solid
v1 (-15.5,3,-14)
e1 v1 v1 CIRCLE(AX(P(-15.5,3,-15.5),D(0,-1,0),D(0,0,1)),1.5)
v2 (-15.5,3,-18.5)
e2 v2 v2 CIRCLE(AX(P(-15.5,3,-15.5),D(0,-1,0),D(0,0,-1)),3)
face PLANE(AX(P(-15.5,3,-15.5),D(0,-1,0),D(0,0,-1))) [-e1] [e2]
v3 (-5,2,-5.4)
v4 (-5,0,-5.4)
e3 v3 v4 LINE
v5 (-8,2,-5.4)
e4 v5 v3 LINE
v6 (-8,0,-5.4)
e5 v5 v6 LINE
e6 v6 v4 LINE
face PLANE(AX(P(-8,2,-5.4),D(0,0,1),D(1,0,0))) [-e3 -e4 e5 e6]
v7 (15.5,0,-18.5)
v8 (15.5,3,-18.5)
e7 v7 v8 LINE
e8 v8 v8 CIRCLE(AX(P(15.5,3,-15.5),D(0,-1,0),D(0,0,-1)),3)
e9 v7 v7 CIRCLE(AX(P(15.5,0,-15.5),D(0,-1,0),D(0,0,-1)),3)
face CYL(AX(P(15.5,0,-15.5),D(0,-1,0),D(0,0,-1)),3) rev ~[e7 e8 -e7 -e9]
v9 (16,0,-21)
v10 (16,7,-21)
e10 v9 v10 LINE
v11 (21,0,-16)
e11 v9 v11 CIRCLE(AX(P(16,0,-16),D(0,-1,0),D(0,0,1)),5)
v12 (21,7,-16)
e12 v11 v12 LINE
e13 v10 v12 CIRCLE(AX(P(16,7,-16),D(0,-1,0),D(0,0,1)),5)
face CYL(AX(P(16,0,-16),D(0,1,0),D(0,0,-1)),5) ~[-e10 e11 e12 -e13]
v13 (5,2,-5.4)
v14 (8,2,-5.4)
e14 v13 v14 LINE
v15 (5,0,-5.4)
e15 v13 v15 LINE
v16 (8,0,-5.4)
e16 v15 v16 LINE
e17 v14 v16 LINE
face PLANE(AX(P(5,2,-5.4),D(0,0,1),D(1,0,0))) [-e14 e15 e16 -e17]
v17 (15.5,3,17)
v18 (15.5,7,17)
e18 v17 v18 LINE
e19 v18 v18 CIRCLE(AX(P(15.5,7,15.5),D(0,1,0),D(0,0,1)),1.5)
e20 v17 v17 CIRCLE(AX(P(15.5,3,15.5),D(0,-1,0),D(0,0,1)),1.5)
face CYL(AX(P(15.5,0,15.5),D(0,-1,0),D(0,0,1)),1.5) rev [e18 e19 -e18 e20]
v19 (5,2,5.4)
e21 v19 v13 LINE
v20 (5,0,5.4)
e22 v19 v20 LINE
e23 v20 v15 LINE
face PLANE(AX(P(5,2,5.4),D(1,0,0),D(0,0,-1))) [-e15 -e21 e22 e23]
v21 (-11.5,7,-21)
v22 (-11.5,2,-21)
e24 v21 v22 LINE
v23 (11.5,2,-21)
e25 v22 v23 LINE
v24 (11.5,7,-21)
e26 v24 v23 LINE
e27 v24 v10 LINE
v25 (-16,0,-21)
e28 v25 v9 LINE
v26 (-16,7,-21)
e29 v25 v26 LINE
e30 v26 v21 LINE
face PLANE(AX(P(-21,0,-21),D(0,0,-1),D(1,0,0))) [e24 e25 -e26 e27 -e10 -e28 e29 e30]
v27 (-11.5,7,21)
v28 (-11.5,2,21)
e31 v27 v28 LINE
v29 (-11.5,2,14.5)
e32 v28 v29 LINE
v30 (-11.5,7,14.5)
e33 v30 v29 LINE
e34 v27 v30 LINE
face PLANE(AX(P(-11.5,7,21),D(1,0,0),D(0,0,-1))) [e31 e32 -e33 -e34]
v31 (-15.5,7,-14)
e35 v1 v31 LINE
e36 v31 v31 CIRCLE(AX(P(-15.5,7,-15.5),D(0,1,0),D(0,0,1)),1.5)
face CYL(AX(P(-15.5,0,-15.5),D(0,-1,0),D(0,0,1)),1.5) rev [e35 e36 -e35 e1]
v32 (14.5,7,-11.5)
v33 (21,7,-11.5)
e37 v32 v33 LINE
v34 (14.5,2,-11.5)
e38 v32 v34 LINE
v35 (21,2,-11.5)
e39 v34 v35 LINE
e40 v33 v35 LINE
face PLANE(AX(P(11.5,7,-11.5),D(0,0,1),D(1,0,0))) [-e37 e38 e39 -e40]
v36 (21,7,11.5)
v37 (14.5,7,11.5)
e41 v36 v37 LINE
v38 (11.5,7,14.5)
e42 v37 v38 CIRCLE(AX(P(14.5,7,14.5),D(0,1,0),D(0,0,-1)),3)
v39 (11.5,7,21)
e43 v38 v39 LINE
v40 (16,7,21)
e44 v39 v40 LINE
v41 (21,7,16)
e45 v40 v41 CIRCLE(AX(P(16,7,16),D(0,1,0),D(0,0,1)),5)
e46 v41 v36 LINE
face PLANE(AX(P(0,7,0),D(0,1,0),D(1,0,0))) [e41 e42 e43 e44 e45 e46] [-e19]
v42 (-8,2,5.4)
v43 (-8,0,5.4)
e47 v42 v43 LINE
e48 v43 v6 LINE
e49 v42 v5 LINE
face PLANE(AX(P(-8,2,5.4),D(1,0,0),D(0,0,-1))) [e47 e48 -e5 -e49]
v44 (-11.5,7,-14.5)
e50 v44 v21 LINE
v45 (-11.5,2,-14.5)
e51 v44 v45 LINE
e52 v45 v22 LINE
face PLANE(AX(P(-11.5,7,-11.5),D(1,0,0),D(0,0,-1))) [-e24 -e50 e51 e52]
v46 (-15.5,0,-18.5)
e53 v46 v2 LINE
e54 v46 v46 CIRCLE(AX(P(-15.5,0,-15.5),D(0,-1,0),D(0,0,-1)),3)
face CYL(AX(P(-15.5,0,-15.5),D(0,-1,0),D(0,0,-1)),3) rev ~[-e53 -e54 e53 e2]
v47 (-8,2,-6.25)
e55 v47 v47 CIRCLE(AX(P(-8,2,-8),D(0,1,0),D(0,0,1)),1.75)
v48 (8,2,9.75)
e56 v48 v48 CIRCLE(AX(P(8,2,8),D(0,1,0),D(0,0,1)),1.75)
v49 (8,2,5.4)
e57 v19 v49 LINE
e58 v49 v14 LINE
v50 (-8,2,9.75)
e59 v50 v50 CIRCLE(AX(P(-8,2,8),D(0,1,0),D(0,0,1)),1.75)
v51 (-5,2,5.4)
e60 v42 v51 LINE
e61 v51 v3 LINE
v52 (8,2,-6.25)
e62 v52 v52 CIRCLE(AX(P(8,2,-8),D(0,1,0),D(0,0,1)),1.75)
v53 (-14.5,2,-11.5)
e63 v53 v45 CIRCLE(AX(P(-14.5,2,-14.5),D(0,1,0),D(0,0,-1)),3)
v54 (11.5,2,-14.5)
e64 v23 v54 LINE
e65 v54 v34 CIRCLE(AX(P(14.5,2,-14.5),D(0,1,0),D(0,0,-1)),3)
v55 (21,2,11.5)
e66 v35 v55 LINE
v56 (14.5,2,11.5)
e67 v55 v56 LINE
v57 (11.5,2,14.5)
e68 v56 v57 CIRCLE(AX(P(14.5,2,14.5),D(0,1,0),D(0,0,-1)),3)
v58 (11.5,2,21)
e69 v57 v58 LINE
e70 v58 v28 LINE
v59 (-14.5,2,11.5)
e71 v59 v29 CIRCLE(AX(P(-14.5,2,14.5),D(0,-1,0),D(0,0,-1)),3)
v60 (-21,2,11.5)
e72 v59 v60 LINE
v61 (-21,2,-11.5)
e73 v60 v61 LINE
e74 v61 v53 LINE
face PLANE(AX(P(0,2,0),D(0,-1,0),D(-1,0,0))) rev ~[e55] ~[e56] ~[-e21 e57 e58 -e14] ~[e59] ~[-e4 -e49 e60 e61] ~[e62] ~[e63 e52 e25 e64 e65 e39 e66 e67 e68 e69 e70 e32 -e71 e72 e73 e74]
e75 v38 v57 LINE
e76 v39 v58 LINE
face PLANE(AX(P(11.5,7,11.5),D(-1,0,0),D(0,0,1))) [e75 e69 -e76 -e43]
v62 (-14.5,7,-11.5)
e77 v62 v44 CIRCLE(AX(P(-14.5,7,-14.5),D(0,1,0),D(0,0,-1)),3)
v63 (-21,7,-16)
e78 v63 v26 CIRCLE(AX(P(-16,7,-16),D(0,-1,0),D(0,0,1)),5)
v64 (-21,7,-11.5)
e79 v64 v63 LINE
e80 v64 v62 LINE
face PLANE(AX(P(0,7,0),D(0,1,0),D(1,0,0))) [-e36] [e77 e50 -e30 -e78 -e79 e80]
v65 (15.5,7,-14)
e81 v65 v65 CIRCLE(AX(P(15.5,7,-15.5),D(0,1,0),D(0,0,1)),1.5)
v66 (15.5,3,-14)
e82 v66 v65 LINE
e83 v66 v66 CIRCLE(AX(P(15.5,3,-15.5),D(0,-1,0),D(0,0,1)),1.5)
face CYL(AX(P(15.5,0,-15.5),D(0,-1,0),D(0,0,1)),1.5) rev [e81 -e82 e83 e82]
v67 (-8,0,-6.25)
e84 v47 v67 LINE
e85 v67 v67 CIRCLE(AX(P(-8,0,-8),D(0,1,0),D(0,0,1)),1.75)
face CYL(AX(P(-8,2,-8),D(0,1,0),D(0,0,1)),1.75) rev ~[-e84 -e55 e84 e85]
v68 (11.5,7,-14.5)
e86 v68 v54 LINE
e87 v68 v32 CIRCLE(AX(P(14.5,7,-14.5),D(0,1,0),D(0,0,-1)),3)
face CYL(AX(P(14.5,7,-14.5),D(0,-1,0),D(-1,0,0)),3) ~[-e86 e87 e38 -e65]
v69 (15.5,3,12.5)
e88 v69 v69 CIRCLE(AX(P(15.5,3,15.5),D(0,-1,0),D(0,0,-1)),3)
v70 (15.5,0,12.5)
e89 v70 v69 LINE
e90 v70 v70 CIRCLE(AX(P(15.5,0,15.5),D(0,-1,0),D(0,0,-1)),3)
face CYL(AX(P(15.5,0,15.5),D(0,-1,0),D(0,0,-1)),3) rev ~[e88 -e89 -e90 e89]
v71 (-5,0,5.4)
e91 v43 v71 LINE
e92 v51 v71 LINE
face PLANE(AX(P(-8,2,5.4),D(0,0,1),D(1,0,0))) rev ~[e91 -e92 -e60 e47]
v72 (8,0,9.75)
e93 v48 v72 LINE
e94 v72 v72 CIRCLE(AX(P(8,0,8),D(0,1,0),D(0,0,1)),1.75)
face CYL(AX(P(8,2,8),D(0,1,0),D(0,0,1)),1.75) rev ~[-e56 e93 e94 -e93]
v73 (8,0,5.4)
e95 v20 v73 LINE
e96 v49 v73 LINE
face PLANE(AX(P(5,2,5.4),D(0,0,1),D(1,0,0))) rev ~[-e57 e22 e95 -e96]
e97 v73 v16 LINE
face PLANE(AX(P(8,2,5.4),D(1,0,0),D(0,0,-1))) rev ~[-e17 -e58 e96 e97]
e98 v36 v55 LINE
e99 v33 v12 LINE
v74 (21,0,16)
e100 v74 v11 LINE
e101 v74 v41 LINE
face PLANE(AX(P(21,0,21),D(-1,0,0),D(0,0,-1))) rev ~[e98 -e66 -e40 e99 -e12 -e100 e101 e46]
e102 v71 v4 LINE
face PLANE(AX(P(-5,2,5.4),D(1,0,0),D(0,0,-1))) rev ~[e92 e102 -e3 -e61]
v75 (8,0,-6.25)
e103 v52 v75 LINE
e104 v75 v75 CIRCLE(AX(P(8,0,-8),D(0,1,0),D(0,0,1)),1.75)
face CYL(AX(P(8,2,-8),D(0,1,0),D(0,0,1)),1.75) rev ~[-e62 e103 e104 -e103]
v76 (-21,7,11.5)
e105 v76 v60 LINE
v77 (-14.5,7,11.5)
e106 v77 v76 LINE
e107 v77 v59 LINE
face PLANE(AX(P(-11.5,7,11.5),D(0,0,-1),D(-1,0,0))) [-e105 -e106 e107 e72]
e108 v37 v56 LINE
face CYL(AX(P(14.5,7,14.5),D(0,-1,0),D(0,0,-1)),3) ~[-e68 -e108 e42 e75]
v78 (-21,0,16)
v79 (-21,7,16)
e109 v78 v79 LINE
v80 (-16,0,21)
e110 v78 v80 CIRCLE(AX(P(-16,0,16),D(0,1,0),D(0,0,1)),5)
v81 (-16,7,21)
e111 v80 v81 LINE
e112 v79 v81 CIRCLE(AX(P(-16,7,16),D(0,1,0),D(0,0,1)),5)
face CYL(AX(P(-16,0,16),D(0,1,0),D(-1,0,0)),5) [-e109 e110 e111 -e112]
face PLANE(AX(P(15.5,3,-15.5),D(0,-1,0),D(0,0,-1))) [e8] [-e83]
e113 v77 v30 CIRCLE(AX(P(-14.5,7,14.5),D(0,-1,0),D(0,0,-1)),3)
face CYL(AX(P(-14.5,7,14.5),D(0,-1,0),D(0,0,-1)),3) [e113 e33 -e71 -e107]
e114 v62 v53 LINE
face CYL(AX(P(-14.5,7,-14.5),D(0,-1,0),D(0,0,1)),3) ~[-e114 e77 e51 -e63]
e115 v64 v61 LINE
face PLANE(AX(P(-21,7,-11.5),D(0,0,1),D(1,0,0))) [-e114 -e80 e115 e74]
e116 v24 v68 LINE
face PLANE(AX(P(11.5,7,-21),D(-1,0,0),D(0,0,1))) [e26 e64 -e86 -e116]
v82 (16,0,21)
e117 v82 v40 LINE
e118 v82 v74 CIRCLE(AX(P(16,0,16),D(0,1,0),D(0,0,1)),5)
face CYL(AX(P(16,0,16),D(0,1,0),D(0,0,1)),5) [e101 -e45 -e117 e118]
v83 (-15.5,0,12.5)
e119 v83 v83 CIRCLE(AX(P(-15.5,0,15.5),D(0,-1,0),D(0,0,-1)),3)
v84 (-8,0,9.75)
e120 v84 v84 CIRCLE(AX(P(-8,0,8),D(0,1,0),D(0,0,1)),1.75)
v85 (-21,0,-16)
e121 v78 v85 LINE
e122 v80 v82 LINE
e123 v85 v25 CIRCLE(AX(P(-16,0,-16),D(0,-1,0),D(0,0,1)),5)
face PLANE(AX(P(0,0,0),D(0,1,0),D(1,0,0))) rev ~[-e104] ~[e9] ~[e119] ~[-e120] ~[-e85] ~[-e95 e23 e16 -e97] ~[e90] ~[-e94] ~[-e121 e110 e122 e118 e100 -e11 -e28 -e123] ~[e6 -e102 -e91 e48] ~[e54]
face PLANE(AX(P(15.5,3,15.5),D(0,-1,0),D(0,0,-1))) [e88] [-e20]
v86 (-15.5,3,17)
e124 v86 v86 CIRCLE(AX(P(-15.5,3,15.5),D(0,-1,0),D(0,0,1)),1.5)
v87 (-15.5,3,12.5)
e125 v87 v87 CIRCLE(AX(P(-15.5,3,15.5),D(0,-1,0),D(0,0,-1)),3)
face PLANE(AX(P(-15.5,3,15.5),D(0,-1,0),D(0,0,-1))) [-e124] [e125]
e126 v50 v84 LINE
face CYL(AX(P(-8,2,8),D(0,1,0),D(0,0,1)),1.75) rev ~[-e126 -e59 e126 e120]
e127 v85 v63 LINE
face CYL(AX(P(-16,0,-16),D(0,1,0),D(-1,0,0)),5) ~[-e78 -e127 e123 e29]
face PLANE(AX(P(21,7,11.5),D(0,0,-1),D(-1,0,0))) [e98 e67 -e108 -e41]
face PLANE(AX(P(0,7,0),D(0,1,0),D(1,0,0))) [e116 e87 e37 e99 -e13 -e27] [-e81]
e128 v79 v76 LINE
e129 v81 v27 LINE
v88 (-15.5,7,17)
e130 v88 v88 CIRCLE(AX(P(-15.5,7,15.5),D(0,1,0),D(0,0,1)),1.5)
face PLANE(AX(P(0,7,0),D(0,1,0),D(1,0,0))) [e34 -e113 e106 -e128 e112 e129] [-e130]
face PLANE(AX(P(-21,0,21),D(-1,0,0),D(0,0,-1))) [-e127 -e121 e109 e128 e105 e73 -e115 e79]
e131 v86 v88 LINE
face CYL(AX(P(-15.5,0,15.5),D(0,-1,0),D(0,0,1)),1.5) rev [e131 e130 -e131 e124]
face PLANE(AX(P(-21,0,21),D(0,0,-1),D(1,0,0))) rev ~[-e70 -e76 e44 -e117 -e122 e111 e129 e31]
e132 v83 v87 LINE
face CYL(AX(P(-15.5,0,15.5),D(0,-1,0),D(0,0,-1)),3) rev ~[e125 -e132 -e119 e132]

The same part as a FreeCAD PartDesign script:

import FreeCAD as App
import Part
import Sketcher

V = App.Vector


def edges_at(feature, points):
    """Names of the edges that pass closest to the given points."""
    edges = feature.Shape.Edges
    near = lambda p: min(range(len(edges)), key=lambda i: edges[i].distToShape(Part.Vertex(*p))[0])
    return sorted({f"Edge{near(p) + 1}" for p in points})

doc = App.newDocument("Part")
body = doc.addObject("PartDesign::Body", "Body")

sketch1 = doc.addObject("Sketcher::SketchObject", "Sketch")
body.addObject(sketch1)
sketch1.AttachmentSupport = (doc.XZ_Plane, [""])
sketch1.MapMode = "FlatFace"
sketch1.addGeometry([
    Part.LineSegment(V(-21, -21, 0), V(-21, 21, 0)),
    Part.LineSegment(V(-21, 21, 0), V(21, 21, 0)),
    Part.LineSegment(V(21, 21, 0), V(21, -21, 0)),
    Part.LineSegment(V(21, -21, 0), V(-21, -21, 0)),
    Part.Circle(V(-15.5, 15.5, 0), V(0, 0, 1), 1.5),
    Part.Circle(V(15.5, 15.5, 0), V(0, 0, 1), 1.5),
    Part.Circle(V(-15.5, -15.5, 0), V(0, 0, 1), 1.5),
    Part.Circle(V(15.5, -15.5, 0), V(0, 0, 1), 1.5),
], False)
sketch1.addConstraint([
    Sketcher.Constraint("Coincident", 0, 2, 1, 1),
    Sketcher.Constraint("Coincident", 1, 2, 2, 1),
    Sketcher.Constraint("Coincident", 2, 2, 3, 1),
    Sketcher.Constraint("Coincident", 3, 2, 0, 1),
    Sketcher.Constraint("Vertical", 0),
    Sketcher.Constraint("Horizontal", 1),
    Sketcher.Constraint("Vertical", 2),
    Sketcher.Constraint("Horizontal", 3),
    Sketcher.Constraint("Equal", 4, 5),
    Sketcher.Constraint("Equal", 5, 6),
    Sketcher.Constraint("Equal", 6, 7),
    Sketcher.Constraint("Symmetric", 5, 3, 6, 3, -1, 1),
    Sketcher.Constraint("Symmetric", 4, 3, 7, 3, -1, 1),
    Sketcher.Constraint("Symmetric", 0, 2, 2, 2, -1, 1),
    Sketcher.Constraint("Symmetric", 4, 3, 5, 3, -2),
    Sketcher.Constraint("Equal", 3, 0),
    Sketcher.Constraint("Diameter", 4, 3.0),
    Sketcher.Constraint("DistanceX", 1, 1, 1, 2, 42.0),
    Sketcher.Constraint("DistanceX", 4, 3, 5, 3, 31.0),
    Sketcher.Constraint("DistanceY", 6, 3, 4, 3, 31.0),
])
pad1 = doc.addObject("PartDesign::Pad", "Pad")
body.addObject(pad1)
pad1.Profile = sketch1
pad1.Length = 7
pad1.Reversed = True

sketch2 = doc.addObject("Sketcher::SketchObject", "Sketch001")
body.addObject(sketch2)
sketch2.AttachmentSupport = (doc.XZ_Plane, [""])
sketch2.MapMode = "FlatFace"
sketch2.AttachmentOffset = App.Placement(V(0, 0, -7), App.Rotation())
sketch2.addGeometry([
    Part.LineSegment(V(-12, -21, 0), V(-12, -12, 0)),
    Part.LineSegment(V(-12, -12, 0), V(-21, -12, 0)),
    Part.LineSegment(V(-21, -12, 0), V(-21, 12, 0)),
    Part.LineSegment(V(-21, 12, 0), V(-12, 12, 0)),
    Part.LineSegment(V(-12, 12, 0), V(-12, 21, 0)),
    Part.LineSegment(V(-12, 21, 0), V(12, 21, 0)),
    Part.LineSegment(V(12, 21, 0), V(12, 12, 0)),
    Part.LineSegment(V(12, 12, 0), V(21, 12, 0)),
    Part.LineSegment(V(21, 12, 0), V(21, -12, 0)),
    Part.LineSegment(V(21, -12, 0), V(12, -12, 0)),
    Part.LineSegment(V(12, -12, 0), V(12, -21, 0)),
    Part.LineSegment(V(12, -21, 0), V(-12, -21, 0)),
], False)
sketch2.addConstraint([
    Sketcher.Constraint("Coincident", 0, 2, 1, 1),
    Sketcher.Constraint("Coincident", 1, 2, 2, 1),
    Sketcher.Constraint("Coincident", 2, 2, 3, 1),
    Sketcher.Constraint("Coincident", 3, 2, 4, 1),
    Sketcher.Constraint("Coincident", 4, 2, 5, 1),
    Sketcher.Constraint("Coincident", 5, 2, 6, 1),
    Sketcher.Constraint("Coincident", 6, 2, 7, 1),
    Sketcher.Constraint("Coincident", 7, 2, 8, 1),
    Sketcher.Constraint("Coincident", 8, 2, 9, 1),
    Sketcher.Constraint("Coincident", 9, 2, 10, 1),
    Sketcher.Constraint("Coincident", 10, 2, 11, 1),
    Sketcher.Constraint("Coincident", 11, 2, 0, 1),
    Sketcher.Constraint("Vertical", 0),
    Sketcher.Constraint("Horizontal", 1),
    Sketcher.Constraint("Vertical", 2),
    Sketcher.Constraint("Horizontal", 3),
    Sketcher.Constraint("Vertical", 4),
    Sketcher.Constraint("Horizontal", 5),
    Sketcher.Constraint("Vertical", 6),
    Sketcher.Constraint("Horizontal", 7),
    Sketcher.Constraint("Vertical", 8),
    Sketcher.Constraint("Horizontal", 9),
    Sketcher.Constraint("Vertical", 10),
    Sketcher.Constraint("Horizontal", 11),
    Sketcher.Constraint("Symmetric", 0, 2, 6, 2, -1, 1),
    Sketcher.Constraint("Symmetric", 2, 2, 8, 2, -1, 1),
    Sketcher.Constraint("Symmetric", 4, 2, 10, 2, -1, 1),
    Sketcher.Constraint("Symmetric", 3, 2, 6, 2, -2),
    Sketcher.Constraint("Equal", 9, 0),
    Sketcher.Constraint("Equal", 11, 2),
    Sketcher.Constraint("DistanceX", 5, 1, 5, 2, 23.0),
    Sketcher.Constraint("DistanceX", 1, 2, 1, 1, 9.5),
])
pocket1 = doc.addObject("PartDesign::Pocket", "Pocket")
body.addObject(pocket1)
pocket1.Profile = sketch2
pocket1.Length = 5
pocket1.Reversed = True

sketch3 = doc.addObject("Sketcher::SketchObject", "Sketch002")
body.addObject(sketch3)
sketch3.AttachmentSupport = (doc.XZ_Plane, [""])
sketch3.MapMode = "FlatFace"
sketch3.AttachmentOffset = App.Placement(V(0, 0, -2), App.Rotation())
sketch3.addGeometry([
    Part.Circle(V(8, -8, 0), V(0, 0, 1), 1.8),
    Part.Circle(V(8, 8, 0), V(0, 0, 1), 1.8),
    Part.Circle(V(-8, 8, 0), V(0, 0, 1), 1.8),
    Part.Circle(V(-8, -8, 0), V(0, 0, 1), 1.8),
], False)
sketch3.addConstraint([
    Sketcher.Constraint("Equal", 0, 1),
    Sketcher.Constraint("Equal", 1, 2),
    Sketcher.Constraint("Equal", 2, 3),
    Sketcher.Constraint("Symmetric", 0, 3, 2, 3, -1, 1),
    Sketcher.Constraint("Symmetric", 1, 3, 3, 3, -1, 1),
    Sketcher.Constraint("Symmetric", 1, 3, 2, 3, -2),
    Sketcher.Constraint("Diameter", 0, 3.5),
    Sketcher.Constraint("DistanceX", -1, 1, 0, 3, 8.0),
    Sketcher.Constraint("DistanceY", 0, 3, -1, 1, 8.0),
])
pocket2 = doc.addObject("PartDesign::Pocket", "Pocket001")
body.addObject(pocket2)
pocket2.Profile = sketch3
pocket2.Length = 2
pocket2.Reversed = True

sketch4 = doc.addObject("Sketcher::SketchObject", "Sketch003")
body.addObject(sketch4)
sketch4.AttachmentSupport = (doc.XZ_Plane, [""])
sketch4.MapMode = "FlatFace"
sketch4.AttachmentOffset = App.Placement(V(0, 0, -2), App.Rotation())
sketch4.addGeometry([
    Part.LineSegment(V(5, -5.4, 0), V(5, 5.4, 0)),
    Part.LineSegment(V(5, 5.4, 0), V(8, 5.4, 0)),
    Part.LineSegment(V(8, 5.4, 0), V(8, -5.4, 0)),
    Part.LineSegment(V(8, -5.4, 0), V(5, -5.4, 0)),
    Part.LineSegment(V(-8, -5.4, 0), V(-8, 5.4, 0)),
    Part.LineSegment(V(-8, 5.4, 0), V(-5, 5.4, 0)),
    Part.LineSegment(V(-5, 5.4, 0), V(-5, -5.4, 0)),
    Part.LineSegment(V(-5, -5.4, 0), V(-8, -5.4, 0)),
], False)
sketch4.addConstraint([
    Sketcher.Constraint("Coincident", 0, 2, 1, 1),
    Sketcher.Constraint("Coincident", 1, 2, 2, 1),
    Sketcher.Constraint("Coincident", 2, 2, 3, 1),
    Sketcher.Constraint("Coincident", 3, 2, 0, 1),
    Sketcher.Constraint("Coincident", 4, 2, 5, 1),
    Sketcher.Constraint("Coincident", 5, 2, 6, 1),
    Sketcher.Constraint("Coincident", 6, 2, 7, 1),
    Sketcher.Constraint("Coincident", 7, 2, 4, 1),
    Sketcher.Constraint("Vertical", 0),
    Sketcher.Constraint("Horizontal", 1),
    Sketcher.Constraint("Vertical", 2),
    Sketcher.Constraint("Horizontal", 3),
    Sketcher.Constraint("Vertical", 4),
    Sketcher.Constraint("Horizontal", 5),
    Sketcher.Constraint("Vertical", 6),
    Sketcher.Constraint("Horizontal", 7),
    Sketcher.Constraint("Symmetric", 2, 2, 4, 2, -1, 1),
    Sketcher.Constraint("Symmetric", 0, 2, 6, 2, -1, 1),
    Sketcher.Constraint("Horizontal", 1, 2, 4, 2),
    Sketcher.Constraint("DistanceX", 1, 1, 1, 2, 3.0),
    Sketcher.Constraint("DistanceY", 0, 1, 0, 2, 10.8),
    Sketcher.Constraint("DistanceX", -1, 1, 0, 2, 5.0),
])
pocket3 = doc.addObject("PartDesign::Pocket", "Pocket002")
body.addObject(pocket3)
pocket3.Profile = sketch4
pocket3.Length = 4
pocket3.Reversed = True

sketch5 = doc.addObject("Sketcher::SketchObject", "Sketch004")
body.addObject(sketch5)
sketch5.AttachmentSupport = (doc.XZ_Plane, [""])
sketch5.MapMode = "FlatFace"
sketch5.addGeometry([
    Part.Circle(V(-15.5, 15.5, 0), V(0, 0, 1), 3),
    Part.Circle(V(15.5, 15.5, 0), V(0, 0, 1), 3),
    Part.Circle(V(15.5, -15.5, 0), V(0, 0, 1), 3),
    Part.Circle(V(-15.5, -15.5, 0), V(0, 0, 1), 3),
], False)
sketch5.addConstraint([
    Sketcher.Constraint("Equal", 0, 1),
    Sketcher.Constraint("Equal", 1, 2),
    Sketcher.Constraint("Equal", 2, 3),
    Sketcher.Constraint("Symmetric", 0, 3, 2, 3, -1, 1),
    Sketcher.Constraint("Symmetric", 1, 3, 3, 3, -1, 1),
    Sketcher.Constraint("Symmetric", 0, 3, 1, 3, -2),
    Sketcher.Constraint("Diameter", 0, 6.0),
    Sketcher.Constraint("DistanceX", 0, 3, 1, 3, 31.0),
    Sketcher.Constraint("DistanceY", 2, 3, 1, 3, 31.0),
])
pocket4 = doc.addObject("PartDesign::Pocket", "Pocket003")
body.addObject(pocket4)
pocket4.Profile = sketch5
pocket4.Length = 3
doc.recompute()

fillet = doc.addObject("PartDesign::Fillet", "Fillet")
body.addObject(fillet)
fillet.Base = (pocket4, edges_at(pocket4, [
    (21, 3.5, 21),
    (-21, 3.5, 21),
    (-21, 3.5, -21),
    (21, 3.5, -21),
]))
fillet.Radius = 5
doc.recompute()

fillet2 = doc.addObject("PartDesign::Fillet", "Fillet001")
body.addObject(fillet2)
fillet2.Base = (fillet, edges_at(fillet, [
    (11.5, 4.5, 11.5),
    (-11.5, 4.5, 11.5),
    (-11.5, 4.5, -11.5),
    (11.5, 4.5, -11.5),
]))
fillet2.Radius = 3

doc.recompute()
